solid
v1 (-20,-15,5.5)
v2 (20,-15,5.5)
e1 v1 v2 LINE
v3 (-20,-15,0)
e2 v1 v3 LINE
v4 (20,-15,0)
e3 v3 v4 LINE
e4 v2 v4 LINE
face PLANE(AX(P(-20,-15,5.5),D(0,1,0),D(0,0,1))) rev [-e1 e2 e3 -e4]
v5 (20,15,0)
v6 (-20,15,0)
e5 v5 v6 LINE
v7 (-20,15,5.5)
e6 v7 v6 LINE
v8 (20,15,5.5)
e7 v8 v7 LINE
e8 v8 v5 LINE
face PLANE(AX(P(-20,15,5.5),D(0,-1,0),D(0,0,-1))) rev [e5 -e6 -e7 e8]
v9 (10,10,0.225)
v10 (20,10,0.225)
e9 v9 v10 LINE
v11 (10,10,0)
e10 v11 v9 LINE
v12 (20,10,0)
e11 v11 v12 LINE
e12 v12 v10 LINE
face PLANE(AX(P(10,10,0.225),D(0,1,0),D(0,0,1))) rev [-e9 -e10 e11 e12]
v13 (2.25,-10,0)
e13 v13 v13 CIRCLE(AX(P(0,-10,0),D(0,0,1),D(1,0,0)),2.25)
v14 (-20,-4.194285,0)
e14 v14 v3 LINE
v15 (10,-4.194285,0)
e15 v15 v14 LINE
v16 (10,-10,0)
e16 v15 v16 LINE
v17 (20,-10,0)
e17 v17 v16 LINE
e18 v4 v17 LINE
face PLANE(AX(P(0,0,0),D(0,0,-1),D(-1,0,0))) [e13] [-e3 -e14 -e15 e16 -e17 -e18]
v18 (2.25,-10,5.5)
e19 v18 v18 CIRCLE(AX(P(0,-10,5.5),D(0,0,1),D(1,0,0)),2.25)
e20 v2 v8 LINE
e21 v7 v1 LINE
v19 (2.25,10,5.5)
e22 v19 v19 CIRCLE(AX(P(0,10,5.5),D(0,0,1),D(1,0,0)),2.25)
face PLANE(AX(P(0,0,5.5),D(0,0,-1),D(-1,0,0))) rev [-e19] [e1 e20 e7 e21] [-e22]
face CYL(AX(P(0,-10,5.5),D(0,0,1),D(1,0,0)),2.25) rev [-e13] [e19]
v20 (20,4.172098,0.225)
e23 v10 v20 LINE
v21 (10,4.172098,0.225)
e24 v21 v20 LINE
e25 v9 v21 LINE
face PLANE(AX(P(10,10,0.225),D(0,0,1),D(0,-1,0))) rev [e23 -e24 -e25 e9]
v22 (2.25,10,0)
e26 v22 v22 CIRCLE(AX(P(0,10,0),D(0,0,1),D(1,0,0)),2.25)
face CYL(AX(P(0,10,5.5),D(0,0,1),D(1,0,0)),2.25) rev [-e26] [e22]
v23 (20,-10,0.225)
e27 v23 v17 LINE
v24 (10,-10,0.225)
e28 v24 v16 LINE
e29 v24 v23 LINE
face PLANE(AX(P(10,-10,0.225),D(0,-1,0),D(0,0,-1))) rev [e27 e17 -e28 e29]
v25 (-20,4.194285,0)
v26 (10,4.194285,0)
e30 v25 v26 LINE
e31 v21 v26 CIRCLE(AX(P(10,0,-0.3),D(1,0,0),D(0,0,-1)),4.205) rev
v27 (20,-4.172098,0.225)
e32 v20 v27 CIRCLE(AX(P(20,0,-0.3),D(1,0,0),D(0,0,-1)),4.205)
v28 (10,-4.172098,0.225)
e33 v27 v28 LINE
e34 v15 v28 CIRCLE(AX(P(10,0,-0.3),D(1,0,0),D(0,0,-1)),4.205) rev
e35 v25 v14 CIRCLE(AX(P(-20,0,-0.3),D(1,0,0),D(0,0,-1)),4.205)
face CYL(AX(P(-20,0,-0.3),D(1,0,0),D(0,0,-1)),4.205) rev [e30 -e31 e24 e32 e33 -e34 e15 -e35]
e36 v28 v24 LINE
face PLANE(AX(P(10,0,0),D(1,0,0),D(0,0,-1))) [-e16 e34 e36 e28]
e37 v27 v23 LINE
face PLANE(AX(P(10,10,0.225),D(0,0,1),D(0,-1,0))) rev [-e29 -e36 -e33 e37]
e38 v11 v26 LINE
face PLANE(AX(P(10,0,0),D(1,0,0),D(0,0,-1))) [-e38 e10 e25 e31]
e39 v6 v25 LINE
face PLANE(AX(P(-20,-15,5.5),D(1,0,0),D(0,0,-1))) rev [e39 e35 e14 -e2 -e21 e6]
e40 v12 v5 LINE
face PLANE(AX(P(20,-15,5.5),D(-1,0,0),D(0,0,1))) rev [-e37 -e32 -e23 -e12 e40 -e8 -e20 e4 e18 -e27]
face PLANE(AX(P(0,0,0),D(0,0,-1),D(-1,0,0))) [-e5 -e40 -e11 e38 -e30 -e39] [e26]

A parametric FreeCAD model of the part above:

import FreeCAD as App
import Part
import Sketcher
from FreeCAD import Vector


def add_polygon(sketch, points):
    """Adds a closed chain of lines whose ends are joined by coincident constraints."""
    first, n = sketch.GeometryCount, len(points)
    for a, b in zip(points, points[1:] + points[:1]):
        sketch.addGeometry(Part.LineSegment(App.Vector(*a, 0), App.Vector(*b, 0)), False)
    for i in range(n):
        sketch.addConstraint(Sketcher.Constraint("Coincident", first + i, 2, first + (i + 1) % n, 1))

doc = App.newDocument("Part")
body = doc.addObject("PartDesign::Body", "Body")

sketch1 = body.newObject("Sketcher::SketchObject", "Sketch")
sketch1.AttachmentSupport = (doc.getObject("XY_Plane"), [""])
sketch1.MapMode = "FlatFace"
add_polygon(sketch1, [(-20, 15), (-20, -15), (20, -15), (20, 15)])
sketch1.addConstraint(Sketcher.Constraint("Vertical", 0))
sketch1.addConstraint(Sketcher.Constraint("Horizontal", 1))
sketch1.addConstraint(Sketcher.Constraint("Vertical", 2))
sketch1.addConstraint(Sketcher.Constraint("Horizontal", 3))
sketch1.addConstraint(Sketcher.Constraint("Symmetric", 0, 2, 2, 2, -1, 1))
sketch1.addConstraint(Sketcher.Constraint("DistanceX", 1, 1, 1, 2, 40.0))
sketch1.addConstraint(Sketcher.Constraint("DistanceY", 0, 2, 0, 1, 30.0))
pad1 = body.newObject("PartDesign::Pad", "Pad")
pad1.Profile = sketch1
pad1.Length = 5.5

sketch2 = body.newObject("Sketcher::SketchObject", "Sketch001")
sketch2.AttachmentSupport = (doc.getObject("YZ_Plane"), [""])
sketch2.MapMode = "FlatFace"
sketch2.AttachmentOffset = App.Placement(Vector(0, 0, 20), App.Rotation())
sketch2.addGeometry(Part.Circle(Vector(0, -0.3, 0), Vector(0, 0, 1), 4.2), False)
sketch2.addConstraint(Sketcher.Constraint("PointOnObject", 0, 3, -2))
sketch2.addConstraint(Sketcher.Constraint("Diameter", 0, 8.41))
sketch2.addConstraint(Sketcher.Constraint("DistanceY", 0, 3, -1, 1, 0.3))
pocket1 = body.newObject("PartDesign::Pocket", "Pocket")
pocket1.Profile = sketch2
pocket1.Type = "ThroughAll"

sketch3 = body.newObject("Sketcher::SketchObject", "Sketch002")
sketch3.AttachmentSupport = (doc.getObject("XY_Plane"), [""])
sketch3.MapMode = "FlatFace"
sketch3.AttachmentOffset = App.Placement(Vector(0, 0, 5.5), App.Rotation())
sketch3.addGeometry(Part.Circle(Vector(0, 10, 0), Vector(0, 0, 1), 2.2), False)
sketch3.addGeometry(Part.Circle(Vector(0, -10, 0), Vector(0, 0, 1), 2.2), False)
sketch3.addConstraint(Sketcher.Constraint("Equal", 0, 1))
sketch3.addConstraint(Sketcher.Constraint("Symmetric", 0, 3, 1, 3, -1, 1))
sketch3.addConstraint(Sketcher.Constraint("PointOnObject", 0, 3, -2))
sketch3.addConstraint(Sketcher.Constraint("Diameter", 0, 4.5))
sketch3.addConstraint(Sketcher.Constraint("DistanceY", -1, 1, 0, 3, 10.0))
doc.recompute()
hole = body.newObject("PartDesign::Hole", "Hole")
hole.Profile = sketch3
hole.ThreadType = "None"
hole.Diameter = 4.5
hole.DepthType = "ThroughAll"

sketch4 = body.newObject("Sketcher::SketchObject", "Sketch003")
sketch4.AttachmentSupport = (doc.getObject("YZ_Plane"), [""])
sketch4.MapMode = "FlatFace"
sketch4.AttachmentOffset = App.Placement(Vector(0, 0, 20), App.Rotation())
add_polygon(sketch4, [(10, 0.2), (-10, 0.2), (-10, -0.8), (10, -0.8)])
sketch4.addConstraint(Sketcher.Constraint("Horizontal", 0))
sketch4.addConstraint(Sketcher.Constraint("Vertical", 1))
sketch4.addConstraint(Sketcher.Constraint("Horizontal", 2))
sketch4.addConstraint(Sketcher.Constraint("Vertical", 3))
sketch4.addConstraint(Sketcher.Constraint("DistanceX", 0, 2, 0, 1, 20.0))
sketch4.addConstraint(Sketcher.Constraint("DistanceX", 0, 2, -1, 1, 10.0))
sketch4.addConstraint(Sketcher.Constraint("DistanceY", 1, 2, 1, 1, 1.05))
sketch4.addConstraint(Sketcher.Constraint("DistanceY", -1, 1, 0, 2, 0.225))
pocket2 = body.newObject("PartDesign::Pocket", "Pocket001")
pocket2.Profile = sketch4
pocket2.Length = 10

doc.recompute()
